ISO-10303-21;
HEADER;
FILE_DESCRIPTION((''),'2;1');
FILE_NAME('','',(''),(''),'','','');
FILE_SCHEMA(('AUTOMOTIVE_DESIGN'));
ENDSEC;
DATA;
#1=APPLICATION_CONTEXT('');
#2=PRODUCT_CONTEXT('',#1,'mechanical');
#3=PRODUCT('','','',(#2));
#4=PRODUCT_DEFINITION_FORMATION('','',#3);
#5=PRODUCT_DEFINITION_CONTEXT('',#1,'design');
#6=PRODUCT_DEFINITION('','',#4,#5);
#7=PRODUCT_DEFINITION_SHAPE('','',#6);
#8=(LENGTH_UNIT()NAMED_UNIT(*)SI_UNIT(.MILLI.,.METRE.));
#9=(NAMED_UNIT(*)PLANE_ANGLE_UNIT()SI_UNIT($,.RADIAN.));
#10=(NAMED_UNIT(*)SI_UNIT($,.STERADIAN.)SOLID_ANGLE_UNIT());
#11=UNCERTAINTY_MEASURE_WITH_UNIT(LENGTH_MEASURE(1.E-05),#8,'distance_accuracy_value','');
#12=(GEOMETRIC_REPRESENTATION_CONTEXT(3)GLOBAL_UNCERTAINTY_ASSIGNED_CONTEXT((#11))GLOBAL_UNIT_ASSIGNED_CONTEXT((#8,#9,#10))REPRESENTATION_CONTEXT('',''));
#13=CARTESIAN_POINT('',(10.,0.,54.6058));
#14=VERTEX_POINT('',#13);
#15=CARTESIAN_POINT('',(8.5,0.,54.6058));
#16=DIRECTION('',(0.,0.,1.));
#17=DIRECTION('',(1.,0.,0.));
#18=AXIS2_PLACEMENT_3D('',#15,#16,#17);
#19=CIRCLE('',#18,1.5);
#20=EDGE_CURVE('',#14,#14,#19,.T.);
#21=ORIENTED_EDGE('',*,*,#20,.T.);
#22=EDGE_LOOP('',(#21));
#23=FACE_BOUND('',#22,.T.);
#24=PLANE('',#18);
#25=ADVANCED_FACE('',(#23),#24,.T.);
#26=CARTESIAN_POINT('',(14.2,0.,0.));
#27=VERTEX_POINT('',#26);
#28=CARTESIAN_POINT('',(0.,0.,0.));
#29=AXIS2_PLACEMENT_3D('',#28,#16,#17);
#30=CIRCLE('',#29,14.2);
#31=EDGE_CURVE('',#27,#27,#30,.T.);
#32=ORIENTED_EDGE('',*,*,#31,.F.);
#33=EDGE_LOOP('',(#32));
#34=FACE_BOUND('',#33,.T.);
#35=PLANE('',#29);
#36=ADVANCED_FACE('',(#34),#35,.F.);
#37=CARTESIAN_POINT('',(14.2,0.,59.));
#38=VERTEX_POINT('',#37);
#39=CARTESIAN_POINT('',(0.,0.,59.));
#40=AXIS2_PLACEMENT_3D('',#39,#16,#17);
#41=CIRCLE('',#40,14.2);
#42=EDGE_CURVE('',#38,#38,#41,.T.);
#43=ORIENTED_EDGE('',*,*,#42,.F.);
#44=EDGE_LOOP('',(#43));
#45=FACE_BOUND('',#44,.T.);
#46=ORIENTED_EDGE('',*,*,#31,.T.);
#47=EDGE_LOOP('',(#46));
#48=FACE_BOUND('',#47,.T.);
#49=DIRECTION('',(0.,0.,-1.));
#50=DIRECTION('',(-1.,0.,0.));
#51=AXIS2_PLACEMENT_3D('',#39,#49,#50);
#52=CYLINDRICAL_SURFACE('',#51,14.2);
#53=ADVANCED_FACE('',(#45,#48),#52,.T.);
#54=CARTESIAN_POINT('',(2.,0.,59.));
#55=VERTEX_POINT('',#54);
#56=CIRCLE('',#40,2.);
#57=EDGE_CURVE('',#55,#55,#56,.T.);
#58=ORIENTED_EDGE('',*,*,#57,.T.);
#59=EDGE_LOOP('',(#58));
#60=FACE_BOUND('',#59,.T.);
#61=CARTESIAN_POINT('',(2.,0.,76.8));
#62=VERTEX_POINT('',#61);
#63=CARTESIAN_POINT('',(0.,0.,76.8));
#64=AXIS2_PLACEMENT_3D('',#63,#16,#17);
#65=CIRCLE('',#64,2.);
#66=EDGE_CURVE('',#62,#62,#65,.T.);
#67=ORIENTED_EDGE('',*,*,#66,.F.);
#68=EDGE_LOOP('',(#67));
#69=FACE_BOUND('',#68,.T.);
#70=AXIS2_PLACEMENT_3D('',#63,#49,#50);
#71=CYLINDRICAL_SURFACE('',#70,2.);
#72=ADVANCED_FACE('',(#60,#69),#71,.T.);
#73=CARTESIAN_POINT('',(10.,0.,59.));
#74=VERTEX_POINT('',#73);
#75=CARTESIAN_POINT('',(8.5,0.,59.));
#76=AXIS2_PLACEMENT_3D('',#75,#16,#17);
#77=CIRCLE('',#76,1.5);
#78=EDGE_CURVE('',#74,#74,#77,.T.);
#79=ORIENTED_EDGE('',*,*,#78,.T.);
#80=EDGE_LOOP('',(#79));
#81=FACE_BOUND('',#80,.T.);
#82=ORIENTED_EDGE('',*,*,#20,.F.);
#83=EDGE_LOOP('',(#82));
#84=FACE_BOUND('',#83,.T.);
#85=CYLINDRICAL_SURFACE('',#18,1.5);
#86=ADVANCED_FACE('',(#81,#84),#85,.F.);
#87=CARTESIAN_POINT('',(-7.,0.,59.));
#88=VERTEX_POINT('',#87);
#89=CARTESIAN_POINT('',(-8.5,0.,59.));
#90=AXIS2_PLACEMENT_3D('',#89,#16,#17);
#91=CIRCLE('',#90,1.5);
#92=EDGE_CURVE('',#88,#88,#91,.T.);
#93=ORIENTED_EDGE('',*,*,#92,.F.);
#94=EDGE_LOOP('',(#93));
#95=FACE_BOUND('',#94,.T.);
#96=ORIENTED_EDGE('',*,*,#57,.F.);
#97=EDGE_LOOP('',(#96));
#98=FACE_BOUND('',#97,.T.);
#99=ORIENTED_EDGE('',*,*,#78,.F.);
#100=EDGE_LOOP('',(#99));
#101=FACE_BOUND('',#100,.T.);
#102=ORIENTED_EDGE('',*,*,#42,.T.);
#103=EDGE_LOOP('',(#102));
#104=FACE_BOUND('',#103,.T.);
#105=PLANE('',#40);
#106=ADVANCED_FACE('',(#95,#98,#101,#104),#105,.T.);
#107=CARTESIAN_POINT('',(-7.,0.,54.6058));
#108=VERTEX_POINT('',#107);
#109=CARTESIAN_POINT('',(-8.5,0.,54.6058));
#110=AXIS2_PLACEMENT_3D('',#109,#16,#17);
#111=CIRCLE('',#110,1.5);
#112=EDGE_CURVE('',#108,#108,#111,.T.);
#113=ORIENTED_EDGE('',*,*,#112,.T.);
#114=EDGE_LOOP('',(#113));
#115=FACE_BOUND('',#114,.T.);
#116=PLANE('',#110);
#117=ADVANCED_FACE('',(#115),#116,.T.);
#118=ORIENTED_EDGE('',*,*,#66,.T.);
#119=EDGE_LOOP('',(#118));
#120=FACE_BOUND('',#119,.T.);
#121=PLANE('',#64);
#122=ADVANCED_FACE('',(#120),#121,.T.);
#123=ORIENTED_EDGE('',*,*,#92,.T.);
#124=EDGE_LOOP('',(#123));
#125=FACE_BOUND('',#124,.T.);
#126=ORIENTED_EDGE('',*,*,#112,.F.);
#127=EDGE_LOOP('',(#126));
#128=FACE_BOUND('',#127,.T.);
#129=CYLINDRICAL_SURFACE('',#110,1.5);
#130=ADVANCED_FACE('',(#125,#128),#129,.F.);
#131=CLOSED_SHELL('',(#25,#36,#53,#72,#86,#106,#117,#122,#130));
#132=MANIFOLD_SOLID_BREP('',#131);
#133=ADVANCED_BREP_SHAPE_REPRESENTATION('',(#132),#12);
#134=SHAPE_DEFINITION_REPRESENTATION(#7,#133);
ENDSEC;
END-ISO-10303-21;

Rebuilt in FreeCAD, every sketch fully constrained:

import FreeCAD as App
import Part
import Sketcher
from FreeCAD import Vector

doc = App.newDocument("Part")
body = doc.addObject("PartDesign::Body", "Body")

# Sketch on XY plane
sketch1 = doc.addObject("Sketcher::SketchObject", "Sketch")
body.addObject(sketch1)
sketch1.AttachmentSupport = (doc.XY_Plane, [""])
sketch1.MapMode = "FlatFace"
sketch1.addGeometry(Part.Circle(Vector(0, 0, 0), Vector(0, 0, 1), 14), False)
sketch1.addConstraint(Sketcher.Constraint("Coincident", 0, 3, -1, 1))
sketch1.addConstraint(Sketcher.Constraint("Diameter", 0, 28.4))
pad1 = doc.addObject("PartDesign::Pad", "Pad")
body.addObject(pad1)
pad1.Profile = sketch1
pad1.Length = 59

# Sketch on XY plane
sketch2 = doc.addObject("Sketcher::SketchObject", "Sketch001")
body.addObject(sketch2)
sketch2.AttachmentSupport = (doc.XY_Plane, [""])
sketch2.MapMode = "FlatFace"
sketch2.AttachmentOffset = App.Placement(Vector(0, 0, 59), App.Rotation())
sketch2.addGeometry(Part.Circle(Vector(0, 0, 0), Vector(0, 0, 1), 2), False)
sketch2.addConstraint(Sketcher.Constraint("Coincident", 0, 3, -1, 1))
sketch2.addConstraint(Sketcher.Constraint("Diameter", 0, 4.0))
pad2 = doc.addObject("PartDesign::Pad", "Pad001")
body.addObject(pad2)
pad2.Profile = sketch2
pad2.Length = 17.8

# Sketch on XY plane
sketch3 = doc.addObject("Sketcher::SketchObject", "Sketch002")
body.addObject(sketch3)
sketch3.AttachmentSupport = (doc.XY_Plane, [""])
sketch3.MapMode = "FlatFace"
sketch3.AttachmentOffset = App.Placement(Vector(0, 0, 59), App.Rotation())
sketch3.addGeometry(Part.Circle(Vector(-8.5, 0, 0), Vector(0, 0, 1), 1.5), False)
sketch3.addGeometry(Part.Circle(Vector(8.5, 0, 0), Vector(0, 0, 1), 1.5), False)
sketch3.addConstraint(Sketcher.Constraint("Equal", 0, 1))
sketch3.addConstraint(Sketcher.Constraint("Symmetric", 0, 3, 1, 3, -1, 1))
sketch3.addConstraint(Sketcher.Constraint("PointOnObject", 0, 3, -1))
sketch3.addConstraint(Sketcher.Constraint("Diameter", 0, 3.0))
sketch3.addConstraint(Sketcher.Constraint("DistanceX", 0, 3, 1, 3, 17.0))
pocket1 = doc.addObject("PartDesign::Pocket", "Pocket")
body.addObject(pocket1)
pocket1.Profile = sketch3
pocket1.Length = 4.3942

doc.recompute()
